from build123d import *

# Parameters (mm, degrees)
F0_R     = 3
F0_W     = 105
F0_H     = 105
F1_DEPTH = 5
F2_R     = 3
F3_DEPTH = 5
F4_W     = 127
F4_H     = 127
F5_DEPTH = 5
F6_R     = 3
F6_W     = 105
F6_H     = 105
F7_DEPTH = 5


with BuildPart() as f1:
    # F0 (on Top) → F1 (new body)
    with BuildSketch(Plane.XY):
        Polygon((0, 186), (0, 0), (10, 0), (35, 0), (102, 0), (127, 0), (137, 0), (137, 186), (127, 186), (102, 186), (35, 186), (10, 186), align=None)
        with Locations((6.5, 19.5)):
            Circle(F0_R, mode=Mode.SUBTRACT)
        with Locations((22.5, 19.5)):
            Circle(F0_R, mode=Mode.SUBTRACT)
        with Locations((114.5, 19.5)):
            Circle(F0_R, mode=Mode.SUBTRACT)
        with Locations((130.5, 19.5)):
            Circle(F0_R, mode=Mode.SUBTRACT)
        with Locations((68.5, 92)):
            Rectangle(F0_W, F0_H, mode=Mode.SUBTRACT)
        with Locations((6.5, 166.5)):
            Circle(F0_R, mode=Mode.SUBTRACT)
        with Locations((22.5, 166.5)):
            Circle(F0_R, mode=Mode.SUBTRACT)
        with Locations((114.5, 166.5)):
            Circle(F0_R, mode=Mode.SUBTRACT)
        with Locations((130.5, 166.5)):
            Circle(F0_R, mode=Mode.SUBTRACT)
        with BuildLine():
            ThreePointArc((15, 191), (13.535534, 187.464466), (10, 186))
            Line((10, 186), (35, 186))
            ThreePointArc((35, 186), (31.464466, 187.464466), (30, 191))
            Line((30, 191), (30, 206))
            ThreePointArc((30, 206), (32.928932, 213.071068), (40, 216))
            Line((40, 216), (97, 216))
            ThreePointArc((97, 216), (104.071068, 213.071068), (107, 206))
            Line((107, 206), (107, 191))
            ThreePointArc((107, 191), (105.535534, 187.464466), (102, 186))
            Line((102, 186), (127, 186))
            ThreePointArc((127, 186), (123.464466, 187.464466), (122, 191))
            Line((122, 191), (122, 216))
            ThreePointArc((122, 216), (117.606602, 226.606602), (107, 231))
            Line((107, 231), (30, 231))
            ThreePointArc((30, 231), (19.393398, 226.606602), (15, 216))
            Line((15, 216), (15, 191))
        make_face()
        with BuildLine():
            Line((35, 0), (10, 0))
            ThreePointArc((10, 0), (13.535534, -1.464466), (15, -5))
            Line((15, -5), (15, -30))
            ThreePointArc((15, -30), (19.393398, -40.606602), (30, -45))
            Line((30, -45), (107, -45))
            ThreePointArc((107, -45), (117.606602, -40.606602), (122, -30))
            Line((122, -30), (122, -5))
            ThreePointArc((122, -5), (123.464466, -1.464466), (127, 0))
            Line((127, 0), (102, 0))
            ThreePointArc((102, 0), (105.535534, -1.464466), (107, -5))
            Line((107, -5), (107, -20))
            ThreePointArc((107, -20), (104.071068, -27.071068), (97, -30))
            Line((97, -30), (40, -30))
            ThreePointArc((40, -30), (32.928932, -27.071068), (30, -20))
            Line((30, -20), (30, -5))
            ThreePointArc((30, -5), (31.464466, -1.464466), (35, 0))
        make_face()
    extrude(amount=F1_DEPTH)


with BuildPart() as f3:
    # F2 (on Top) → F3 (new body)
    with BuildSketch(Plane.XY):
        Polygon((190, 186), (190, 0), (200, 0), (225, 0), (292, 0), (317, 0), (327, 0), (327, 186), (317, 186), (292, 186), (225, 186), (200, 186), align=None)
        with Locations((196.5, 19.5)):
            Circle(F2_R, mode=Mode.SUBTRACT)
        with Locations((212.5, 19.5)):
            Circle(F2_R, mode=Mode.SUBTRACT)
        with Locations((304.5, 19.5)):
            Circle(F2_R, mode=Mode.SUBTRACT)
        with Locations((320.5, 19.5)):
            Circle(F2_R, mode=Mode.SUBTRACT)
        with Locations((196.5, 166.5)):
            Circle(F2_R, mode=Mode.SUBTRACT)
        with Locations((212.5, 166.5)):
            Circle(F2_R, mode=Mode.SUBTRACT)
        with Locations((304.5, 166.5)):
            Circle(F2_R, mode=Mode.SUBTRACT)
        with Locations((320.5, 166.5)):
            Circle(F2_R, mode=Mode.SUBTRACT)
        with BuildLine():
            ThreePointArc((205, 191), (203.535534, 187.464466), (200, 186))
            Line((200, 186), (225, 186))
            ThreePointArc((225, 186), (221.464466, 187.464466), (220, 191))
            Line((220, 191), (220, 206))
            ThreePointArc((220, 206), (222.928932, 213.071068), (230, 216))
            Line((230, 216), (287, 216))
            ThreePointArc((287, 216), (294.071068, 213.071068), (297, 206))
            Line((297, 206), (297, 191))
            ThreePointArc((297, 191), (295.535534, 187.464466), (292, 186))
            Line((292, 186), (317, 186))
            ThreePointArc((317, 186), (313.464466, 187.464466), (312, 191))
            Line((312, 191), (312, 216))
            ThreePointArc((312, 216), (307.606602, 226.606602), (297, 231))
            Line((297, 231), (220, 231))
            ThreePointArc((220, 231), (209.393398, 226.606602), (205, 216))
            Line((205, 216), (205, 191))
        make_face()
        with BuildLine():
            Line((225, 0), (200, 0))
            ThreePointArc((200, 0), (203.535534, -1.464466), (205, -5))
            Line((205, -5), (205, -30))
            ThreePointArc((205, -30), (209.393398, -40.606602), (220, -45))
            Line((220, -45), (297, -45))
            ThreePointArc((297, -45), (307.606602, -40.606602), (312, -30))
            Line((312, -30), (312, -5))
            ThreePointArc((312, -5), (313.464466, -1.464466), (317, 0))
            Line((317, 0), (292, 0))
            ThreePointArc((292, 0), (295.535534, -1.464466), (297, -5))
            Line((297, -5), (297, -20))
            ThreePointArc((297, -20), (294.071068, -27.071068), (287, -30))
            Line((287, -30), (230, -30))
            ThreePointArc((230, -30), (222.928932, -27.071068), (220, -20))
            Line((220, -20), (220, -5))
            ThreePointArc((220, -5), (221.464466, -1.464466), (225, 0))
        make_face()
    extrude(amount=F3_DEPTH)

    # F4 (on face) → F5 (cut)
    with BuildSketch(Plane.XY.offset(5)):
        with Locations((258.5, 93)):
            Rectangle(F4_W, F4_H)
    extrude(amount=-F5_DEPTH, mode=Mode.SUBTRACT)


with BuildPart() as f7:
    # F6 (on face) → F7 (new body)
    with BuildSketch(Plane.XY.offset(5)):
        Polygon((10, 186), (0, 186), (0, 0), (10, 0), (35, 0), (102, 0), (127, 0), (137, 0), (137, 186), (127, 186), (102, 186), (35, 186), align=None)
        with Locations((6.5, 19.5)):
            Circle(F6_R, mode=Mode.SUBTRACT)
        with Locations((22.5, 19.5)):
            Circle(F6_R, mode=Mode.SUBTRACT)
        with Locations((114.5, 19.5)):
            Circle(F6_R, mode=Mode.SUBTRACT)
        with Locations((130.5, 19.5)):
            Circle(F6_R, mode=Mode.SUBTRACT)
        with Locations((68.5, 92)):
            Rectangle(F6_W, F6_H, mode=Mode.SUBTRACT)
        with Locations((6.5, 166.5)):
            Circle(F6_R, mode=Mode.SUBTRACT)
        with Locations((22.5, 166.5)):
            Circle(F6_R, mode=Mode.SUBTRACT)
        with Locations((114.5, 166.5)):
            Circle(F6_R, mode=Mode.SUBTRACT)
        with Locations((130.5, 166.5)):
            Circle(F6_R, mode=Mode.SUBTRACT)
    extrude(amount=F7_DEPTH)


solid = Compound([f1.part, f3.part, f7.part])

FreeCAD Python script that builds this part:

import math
import FreeCAD as App
import Part
import Sketcher

V = App.Vector
Q = App.Units.Quantity


def add_polygon(sketch, points):
    """Adds a closed chain of lines whose ends are joined by coincident constraints."""
    first, n = sketch.GeometryCount, len(points)
    for a, b in zip(points, points[1:] + points[:1]):
        sketch.addGeometry(Part.LineSegment(App.Vector(*a, 0), App.Vector(*b, 0)), False)
    for i in range(n):
        sketch.addConstraint(Sketcher.Constraint("Coincident", first + i, 2, first + (i + 1) % n, 1))

doc = App.newDocument("Part")
params = doc.addObject("Spreadsheet::Sheet", "Params")
for row, (alias, value) in enumerate([
    ("sketch1_diameter", "6 mm"),
    ("sketch1_radius", "5 mm"),
    ("sketch1_radius2", "14.999999 mm"),
    ("sketch1_radius3", "9.999999 mm"),
    ("sketch1_width", "10 mm"),
    ("pad1_length", "5 mm"),
    ("sketch2_diameter", "6 mm"),
    ("sketch2_radius", "5 mm"),
    ("sketch2_radius2", "14.999999 mm"),
    ("sketch2_radius3", "9.999999 mm"),
    ("sketch2_width", "10 mm"),
    ("pad2_length", "5 mm"),
    ("sketch3_width", "127 mm"),
    ("pocket1_length", "5 mm"),
    ("sketch4_diameter", "6 mm"),
    ("sketch4_width", "137 mm"),
    ("sketch4_width2", "105 mm"),
    ("sketch4_height", "186 mm"),
    ("pad3_length", "5 mm"),
], start=1):
    params.set(f"A{row}", alias)
    params.set(f"B{row}", "=" + value)
    params.setAlias(f"B{row}", alias)

body = doc.addObject("PartDesign::Body", "Body")

sketch1 = doc.addObject("Sketcher::SketchObject", "Sketch")
body.addObject(sketch1)
sketch1.AttachmentSupport = (doc.XY_Plane, [""])
sketch1.MapMode = "FlatFace"
sketch1.addGeometry(Part.LineSegment(V(0, 186, 0), V(0, 0, 0)), False)
sketch1.addGeometry(Part.LineSegment(V(0, 0, 0), V(10, 0, 0)), False)
sketch1.addGeometry(Part.ArcOfCircle(Part.Circle(V(10, -5, 0), V(0, 0, 1), 5), math.radians(0), math.radians(90)), False)
sketch1.addGeometry(Part.LineSegment(V(15, -5, 0), V(15, -30, 0)), False)
sketch1.addGeometry(Part.ArcOfCircle(Part.Circle(V(30, -30, 0), V(0, 0, 1), 15), math.radians(180), math.radians(270)), False)
sketch1.addGeometry(Part.LineSegment(V(30, -45, 0), V(107, -45, 0)), False)
sketch1.addGeometry(Part.ArcOfCircle(Part.Circle(V(107, -30, 0), V(0, 0, 1), 15), math.radians(-90), math.radians(0)), False)
sketch1.addGeometry(Part.LineSegment(V(122, -30, 0), V(122, -5, 0)), False)
sketch1.addGeometry(Part.ArcOfCircle(Part.Circle(V(127, -5, 0), V(0, 0, 1), 5), math.radians(90), math.radians(180)), False)
sketch1.addGeometry(Part.LineSegment(V(127, 0, 0), V(137, 0, 0)), False)
sketch1.addGeometry(Part.LineSegment(V(137, 0, 0), V(137, 186, 0)), False)
sketch1.addGeometry(Part.LineSegment(V(137, 186, 0), V(127, 186, 0)), False)
sketch1.addGeometry(Part.ArcOfCircle(Part.Circle(V(127, 191, 0), V(0, 0, 1), 5), math.radians(180), math.radians(270)), False)
sketch1.addGeometry(Part.LineSegment(V(122, 191, 0), V(122, 216, 0)), False)
sketch1.addGeometry(Part.ArcOfCircle(Part.Circle(V(107, 216, 0), V(0, 0, 1), 15), math.radians(0), math.radians(90)), False)
sketch1.addGeometry(Part.LineSegment(V(107, 231, 0), V(30, 231, 0)), False)
sketch1.addGeometry(Part.ArcOfCircle(Part.Circle(V(30, 216, 0), V(0, 0, 1), 15), math.radians(90), math.radians(180)), False)
sketch1.addGeometry(Part.LineSegment(V(15, 216, 0), V(15, 191, 0)), False)
sketch1.addGeometry(Part.ArcOfCircle(Part.Circle(V(10, 191, 0), V(0, 0, 1), 5), math.radians(-90), math.radians(0)), False)
sketch1.addGeometry(Part.LineSegment(V(10, 186, 0), V(0, 186, 0)), False)
sketch1.addGeometry(Part.LineSegment(V(35, 0, 0), V(102, 0, 0)), False)
sketch1.addGeometry(Part.ArcOfCircle(Part.Circle(V(102, -5, 0), V(0, 0, 1), 5), math.radians(0), math.radians(90)), False)
sketch1.addGeometry(Part.LineSegment(V(107, -5, 0), V(107, -20, 0)), False)
sketch1.addGeometry(Part.ArcOfCircle(Part.Circle(V(97, -20, 0), V(0, 0, 1), 10), math.radians(-90), math.radians(0)), False)
sketch1.addGeometry(Part.LineSegment(V(97, -30, 0), V(40, -30, 0)), False)
sketch1.addGeometry(Part.ArcOfCircle(Part.Circle(V(40, -20, 0), V(0, 0, 1), 10), math.radians(180), math.radians(270)), False)
sketch1.addGeometry(Part.LineSegment(V(30, -20, 0), V(30, -5, 0)), False)
sketch1.addGeometry(Part.ArcOfCircle(Part.Circle(V(35, -5, 0), V(0, 0, 1), 5), math.radians(90), math.radians(180)), False)
sketch1.addGeometry(Part.LineSegment(V(102, 186, 0), V(35, 186, 0)), False)
sketch1.addGeometry(Part.ArcOfCircle(Part.Circle(V(35, 191, 0), V(0, 0, 1), 5), math.radians(180), math.radians(270)), False)
sketch1.addGeometry(Part.LineSegment(V(30, 191, 0), V(30, 206, 0)), False)
sketch1.addGeometry(Part.ArcOfCircle(Part.Circle(V(40, 206, 0), V(0, 0, 1), 10), math.radians(90), math.radians(180)), False)
sketch1.addGeometry(Part.LineSegment(V(40, 216, 0), V(97, 216, 0)), False)
sketch1.addGeometry(Part.ArcOfCircle(Part.Circle(V(97, 206, 0), V(0, 0, 1), 10), math.radians(0), math.radians(90)), False)
sketch1.addGeometry(Part.LineSegment(V(107, 206, 0), V(107, 191, 0)), False)
sketch1.addGeometry(Part.ArcOfCircle(Part.Circle(V(102, 191, 0), V(0, 0, 1), 5), math.radians(-90), math.radians(0)), False)
sketch1.addGeometry(Part.Circle(V(6.5, 19.5, 0), V(0, 0, 1), 3), False)
sketch1.addGeometry(Part.Circle(V(22.5, 19.5, 0), V(0, 0, 1), 3), False)
sketch1.addGeometry(Part.Circle(V(114.5, 19.5, 0), V(0, 0, 1), 3), False)
sketch1.addGeometry(Part.Circle(V(130.5, 19.5, 0), V(0, 0, 1), 3), False)
add_polygon(sketch1, [(121, 39.5), (16, 39.5), (16, 144.5), (121, 144.5)])
sketch1.addGeometry(Part.Circle(V(6.5, 166.5, 0), V(0, 0, 1), 3), False)
sketch1.addGeometry(Part.Circle(V(22.5, 166.5, 0), V(0, 0, 1), 3), False)
sketch1.addGeometry(Part.Circle(V(114.5, 166.5, 0), V(0, 0, 1), 3), False)
sketch1.addGeometry(Part.Circle(V(130.5, 166.5, 0), V(0, 0, 1), 3), False)
sketch1.addConstraint([
    Sketcher.Constraint("Coincident", 0, 2, 1, 1),
    Sketcher.Constraint("Tangent", 1, 2, 2, 2),
    Sketcher.Constraint("Tangent", 2, 1, 3, 1),
    Sketcher.Constraint("Tangent", 3, 2, 4, 1),
    Sketcher.Constraint("Tangent", 4, 2, 5, 1),
    Sketcher.Constraint("Tangent", 5, 2, 6, 1),
    Sketcher.Constraint("Tangent", 6, 2, 7, 1),
    Sketcher.Constraint("Tangent", 7, 2, 8, 2),
    Sketcher.Constraint("Tangent", 8, 1, 9, 1),
    Sketcher.Constraint("Coincident", 9, 2, 10, 1),
    Sketcher.Constraint("Coincident", 10, 2, 11, 1),
    Sketcher.Constraint("Tangent", 11, 2, 12, 2),
    Sketcher.Constraint("Tangent", 12, 1, 13, 1),
    Sketcher.Constraint("Tangent", 13, 2, 14, 1),
    Sketcher.Constraint("Tangent", 14, 2, 15, 1),
    Sketcher.Constraint("Tangent", 15, 2, 16, 1),
    Sketcher.Constraint("Tangent", 16, 2, 17, 1),
    Sketcher.Constraint("Tangent", 17, 2, 18, 2),
    Sketcher.Constraint("Tangent", 18, 1, 19, 1),
    Sketcher.Constraint("Coincident", 19, 2, 0, 1),
    Sketcher.Constraint("Tangent", 20, 2, 21, 2),
    Sketcher.Constraint("Tangent", 21, 1, 22, 1),
    Sketcher.Constraint("Tangent", 22, 2, 23, 2),
    Sketcher.Constraint("Tangent", 23, 1, 24, 1),
    Sketcher.Constraint("Tangent", 24, 2, 25, 2),
    Sketcher.Constraint("Tangent", 25, 1, 26, 1),
    Sketcher.Constraint("Tangent", 26, 2, 27, 2),
    Sketcher.Constraint("Tangent", 27, 1, 20, 1),
    Sketcher.Constraint("Tangent", 28, 2, 29, 2),
    Sketcher.Constraint("Tangent", 29, 1, 30, 1),
    Sketcher.Constraint("Tangent", 30, 2, 31, 2),
    Sketcher.Constraint("Tangent", 31, 1, 32, 1),
    Sketcher.Constraint("Tangent", 32, 2, 33, 2),
    Sketcher.Constraint("Tangent", 33, 1, 34, 1),
    Sketcher.Constraint("Tangent", 34, 2, 35, 2),
    Sketcher.Constraint("Tangent", 35, 1, 28, 1),
    Sketcher.Constraint("Vertical", 0),
    Sketcher.Constraint("Horizontal", 1),
    Sketcher.Constraint("Vertical", 3),
    Sketcher.Constraint("Horizontal", 5),
    Sketcher.Constraint("Vertical", 7),
    Sketcher.Constraint("Horizontal", 9),
    Sketcher.Constraint("Vertical", 10),
    Sketcher.Constraint("Horizontal", 11),
    Sketcher.Constraint("Vertical", 13),
    Sketcher.Constraint("Horizontal", 15),
    Sketcher.Constraint("Vertical", 17),
    Sketcher.Constraint("Horizontal", 19),
    Sketcher.Constraint("Horizontal", 20),
    Sketcher.Constraint("Vertical", 22),
    Sketcher.Constraint("Horizontal", 24),
    Sketcher.Constraint("Vertical", 26),
    Sketcher.Constraint("Horizontal", 28),
    Sketcher.Constraint("Vertical", 30),
    Sketcher.Constraint("Horizontal", 32),
    Sketcher.Constraint("Vertical", 34),
    Sketcher.Constraint("Horizontal", 40),
    Sketcher.Constraint("Vertical", 41),
    Sketcher.Constraint("Horizontal", 42),
    Sketcher.Constraint("Vertical", 43),
    Sketcher.Constraint("Coincident", 0, 2, -1, 1),
    Sketcher.Constraint("Equal", 4, 6),
    Sketcher.Constraint("Equal", 2, 8),
    Sketcher.Constraint("Equal", 8, 12),
    Sketcher.Constraint("Equal", 6, 14),
    Sketcher.Constraint("Equal", 14, 16),
    Sketcher.Constraint("Equal", 12, 18),
    Sketcher.Constraint("Equal", 18, 21),
    Sketcher.Constraint("Equal", 23, 25),
    Sketcher.Constraint("Equal", 21, 27),
    Sketcher.Constraint("Equal", 27, 29),
    Sketcher.Constraint("Equal", 25, 31),
    Sketcher.Constraint("Equal", 31, 33),
    Sketcher.Constraint("Equal", 29, 35),
    Sketcher.Constraint("Equal", 36, 37),
    Sketcher.Constraint("Equal", 37, 38),
    Sketcher.Constraint("Equal", 38, 39),
    Sketcher.Constraint("Equal", 39, 44),
    Sketcher.Constraint("Equal", 44, 45),
    Sketcher.Constraint("Equal", 45, 46),
    Sketcher.Constraint("Equal", 46, 47),
    Sketcher.Constraint("PointOnObject", 8, 1, -1),
    Sketcher.Constraint("PointOnObject", 20, 2, -1),
    Sketcher.Constraint("Horizontal", 12, 3, 18, 3),
    Sketcher.Constraint("Horizontal", 18, 3, 29, 3),
    Sketcher.Constraint("Horizontal", 36, 3, 37, 3),
    Sketcher.Constraint("Horizontal", 37, 3, 38, 3),
    Sketcher.Constraint("Horizontal", 38, 3, 39, 3),
    Sketcher.Constraint("Horizontal", 44, 3, 45, 3),
    Sketcher.Constraint("Horizontal", 45, 3, 46, 3),
    Sketcher.Constraint("Horizontal", 46, 3, 47, 3),
    Sketcher.Constraint("Horizontal", 6, 2, 23, 1),
    Sketcher.Constraint("Horizontal", 16, 2, 31, 1),
    Sketcher.Constraint("Vertical", 8, 3, 12, 3),
    Sketcher.Constraint("Vertical", 4, 3, 16, 3),
    Sketcher.Constraint("Vertical", 27, 3, 29, 3),
    Sketcher.Constraint("Vertical", 23, 3, 33, 3),
    Sketcher.Constraint("Vertical", 36, 3, 44, 3),
    Sketcher.Constraint("Vertical", 37, 3, 45, 3),
    Sketcher.Constraint("Vertical", 38, 3, 46, 3),
    Sketcher.Constraint("Vertical", 39, 3, 47, 3),
    Sketcher.Constraint("Vertical", 14, 2, 21, 1),
    Sketcher.Constraint("Vertical", 15, 2, 25, 1),
    Sketcher.Constraint("Equal", 1, 9),
    Sketcher.Constraint("Equal", 7, 13),
    Sketcher.Constraint("Equal", 42, 41),
    Sketcher.Constraint("Diameter", 36, Q("6 mm")),
    Sketcher.Constraint("Radius", 2, Q("5 mm")),
    Sketcher.Constraint("Radius", 4, Q("14.999999 mm")),
    Sketcher.Constraint("Radius", 23, Q("9.999999 mm")),
    Sketcher.Constraint("DistanceX", 1, 1, 1, 2, Q("10 mm")),
    Sketcher.Constraint("DistanceX", 5, 1, 5, 2, Q("77 mm")),
    Sketcher.Constraint("DistanceX", 40, 2, 40, 1, Q("105 mm")),
    Sketcher.Constraint("DistanceY", 0, 2, 0, 1, Q("186 mm")),
    Sketcher.Constraint("DistanceY", 3, 2, 3, 1, Q("25 mm")),
    Sketcher.Constraint("DistanceX", -1, 1, 40, 2, Q("16 mm")),
    Sketcher.Constraint("DistanceX", -1, 1, 36, 3, Q("6.5 mm")),
    Sketcher.Constraint("DistanceY", -1, 1, 36, 3, Q("19.5 mm")),
    Sketcher.Constraint("DistanceX", -1, 1, 37, 3, Q("22.5 mm")),
    Sketcher.Constraint("DistanceX", -1, 1, 38, 3, Q("114.5 mm")),
    Sketcher.Constraint("DistanceX", -1, 1, 39, 3, Q("130.5 mm")),
    Sketcher.Constraint("DistanceY", -1, 1, 44, 3, Q("166.5 mm")),
    Sketcher.Constraint("DistanceY", -1, 1, 40, 2, Q("39.5 mm")),
])
sketch1.setExpression("Constraints[110]", "Params.sketch1_diameter")
sketch1.setExpression("Constraints[111]", "Params.sketch1_radius")
sketch1.setExpression("Constraints[112]", "Params.sketch1_radius2")
sketch1.setExpression("Constraints[113]", "Params.sketch1_radius3")
sketch1.setExpression("Constraints[114]", "Params.sketch1_width")
pad1 = doc.addObject("PartDesign::Pad", "Pad")
body.addObject(pad1)
pad1.Profile = sketch1
pad1.setExpression("Length", "Params.pad1_length")
body2 = doc.addObject("PartDesign::Body", "Body001")

sketch2 = doc.addObject("Sketcher::SketchObject", "Sketch001")
body2.addObject(sketch2)
sketch2.AttachmentSupport = (doc.getObject("XY_Plane001"), [""])
sketch2.MapMode = "FlatFace"
sketch2.addGeometry([
    Part.LineSegment(V(190, 186, 0), V(190, 0, 0)),
    Part.LineSegment(V(190, 0, 0), V(200, 0, 0)),
    Part.ArcOfCircle(Part.Circle(V(200, -5, 0), V(0, 0, 1), 5), math.radians(0), math.radians(90)),
    Part.LineSegment(V(205, -5, 0), V(205, -30, 0)),
    Part.ArcOfCircle(Part.Circle(V(220, -30, 0), V(0, 0, 1), 15), math.radians(180), math.radians(270)),
    Part.LineSegment(V(220, -45, 0), V(297, -45, 0)),
    Part.ArcOfCircle(Part.Circle(V(297, -30, 0), V(0, 0, 1), 15), math.radians(-90), math.radians(0)),
    Part.LineSegment(V(312, -30, 0), V(312, -5, 0)),
    Part.ArcOfCircle(Part.Circle(V(317, -5, 0), V(0, 0, 1), 5), math.radians(90), math.radians(180)),
    Part.LineSegment(V(317, 0, 0), V(327, 0, 0)),
    Part.LineSegment(V(327, 0, 0), V(327, 186, 0)),
    Part.LineSegment(V(327, 186, 0), V(317, 186, 0)),
    Part.ArcOfCircle(Part.Circle(V(317, 191, 0), V(0, 0, 1), 5), math.radians(180), math.radians(270)),
    Part.LineSegment(V(312, 191, 0), V(312, 216, 0)),
    Part.ArcOfCircle(Part.Circle(V(297, 216, 0), V(0, 0, 1), 15), math.radians(0), math.radians(90)),
    Part.LineSegment(V(297, 231, 0), V(220, 231, 0)),
    Part.ArcOfCircle(Part.Circle(V(220, 216, 0), V(0, 0, 1), 15), math.radians(90), math.radians(180)),
    Part.LineSegment(V(205, 216, 0), V(205, 191, 0)),
    Part.ArcOfCircle(Part.Circle(V(200, 191, 0), V(0, 0, 1), 5), math.radians(-90), math.radians(0)),
    Part.LineSegment(V(200, 186, 0), V(190, 186, 0)),
    Part.LineSegment(V(225, 0, 0), V(292, 0, 0)),
    Part.ArcOfCircle(Part.Circle(V(292, -5, 0), V(0, 0, 1), 5), math.radians(0), math.radians(90)),
    Part.LineSegment(V(297, -5, 0), V(297, -20, 0)),
    Part.ArcOfCircle(Part.Circle(V(287, -20, 0), V(0, 0, 1), 10), math.radians(-90), math.radians(0)),
    Part.LineSegment(V(287, -30, 0), V(230, -30, 0)),
    Part.ArcOfCircle(Part.Circle(V(230, -20, 0), V(0, 0, 1), 10), math.radians(180), math.radians(270)),
    Part.LineSegment(V(220, -20, 0), V(220, -5, 0)),
    Part.ArcOfCircle(Part.Circle(V(225, -5, 0), V(0, 0, 1), 5), math.radians(90), math.radians(180)),
    Part.LineSegment(V(292, 186, 0), V(225, 186, 0)),
    Part.ArcOfCircle(Part.Circle(V(225, 191, 0), V(0, 0, 1), 5), math.radians(180), math.radians(270)),
    Part.LineSegment(V(220, 191, 0), V(220, 206, 0)),
    Part.ArcOfCircle(Part.Circle(V(230, 206, 0), V(0, 0, 1), 10), math.radians(90), math.radians(180)),
    Part.LineSegment(V(230, 216, 0), V(287, 216, 0)),
    Part.ArcOfCircle(Part.Circle(V(287, 206, 0), V(0, 0, 1), 10), math.radians(0), math.radians(90)),
    Part.LineSegment(V(297, 206, 0), V(297, 191, 0)),
    Part.ArcOfCircle(Part.Circle(V(292, 191, 0), V(0, 0, 1), 5), math.radians(-90), math.radians(0)),
    Part.Circle(V(196.5, 19.5, 0), V(0, 0, 1), 3),
    Part.Circle(V(212.5, 19.5, 0), V(0, 0, 1), 3),
    Part.Circle(V(304.5, 19.5, 0), V(0, 0, 1), 3),
    Part.Circle(V(320.5, 19.5, 0), V(0, 0, 1), 3),
    Part.Circle(V(196.5, 166.5, 0), V(0, 0, 1), 3),
    Part.Circle(V(212.5, 166.5, 0), V(0, 0, 1), 3),
    Part.Circle(V(304.5, 166.5, 0), V(0, 0, 1), 3),
    Part.Circle(V(320.5, 166.5, 0), V(0, 0, 1), 3),
], False)
sketch2.addConstraint([
    Sketcher.Constraint("Coincident", 0, 2, 1, 1),
    Sketcher.Constraint("Tangent", 1, 2, 2, 2),
    Sketcher.Constraint("Tangent", 2, 1, 3, 1),
    Sketcher.Constraint("Tangent", 3, 2, 4, 1),
    Sketcher.Constraint("Tangent", 4, 2, 5, 1),
    Sketcher.Constraint("Tangent", 5, 2, 6, 1),
    Sketcher.Constraint("Tangent", 6, 2, 7, 1),
    Sketcher.Constraint("Tangent", 7, 2, 8, 2),
    Sketcher.Constraint("Tangent", 8, 1, 9, 1),
    Sketcher.Constraint("Coincident", 9, 2, 10, 1),
    Sketcher.Constraint("Coincident", 10, 2, 11, 1),
    Sketcher.Constraint("Tangent", 11, 2, 12, 2),
    Sketcher.Constraint("Tangent", 12, 1, 13, 1),
    Sketcher.Constraint("Tangent", 13, 2, 14, 1),
    Sketcher.Constraint("Tangent", 14, 2, 15, 1),
    Sketcher.Constraint("Tangent", 15, 2, 16, 1),
    Sketcher.Constraint("Tangent", 16, 2, 17, 1),
    Sketcher.Constraint("Tangent", 17, 2, 18, 2),
    Sketcher.Constraint("Tangent", 18, 1, 19, 1),
    Sketcher.Constraint("Coincident", 19, 2, 0, 1),
    Sketcher.Constraint("Tangent", 20, 2, 21, 2),
    Sketcher.Constraint("Tangent", 21, 1, 22, 1),
    Sketcher.Constraint("Tangent", 22, 2, 23, 2),
    Sketcher.Constraint("Tangent", 23, 1, 24, 1),
    Sketcher.Constraint("Tangent", 24, 2, 25, 2),
    Sketcher.Constraint("Tangent", 25, 1, 26, 1),
    Sketcher.Constraint("Tangent", 26, 2, 27, 2),
    Sketcher.Constraint("Tangent", 27, 1, 20, 1),
    Sketcher.Constraint("Tangent", 28, 2, 29, 2),
    Sketcher.Constraint("Tangent", 29, 1, 30, 1),
    Sketcher.Constraint("Tangent", 30, 2, 31, 2),
    Sketcher.Constraint("Tangent", 31, 1, 32, 1),
    Sketcher.Constraint("Tangent", 32, 2, 33, 2),
    Sketcher.Constraint("Tangent", 33, 1, 34, 1),
    Sketcher.Constraint("Tangent", 34, 2, 35, 2),
    Sketcher.Constraint("Tangent", 35, 1, 28, 1),
    Sketcher.Constraint("Vertical", 0),
    Sketcher.Constraint("Horizontal", 1),
    Sketcher.Constraint("Vertical", 3),
    Sketcher.Constraint("Horizontal", 5),
    Sketcher.Constraint("Vertical", 7),
    Sketcher.Constraint("Horizontal", 9),
    Sketcher.Constraint("Vertical", 10),
    Sketcher.Constraint("Horizontal", 11),
    Sketcher.Constraint("Vertical", 13),
    Sketcher.Constraint("Horizontal", 15),
    Sketcher.Constraint("Vertical", 17),
    Sketcher.Constraint("Horizontal", 19),
    Sketcher.Constraint("Horizontal", 20),
    Sketcher.Constraint("Vertical", 22),
    Sketcher.Constraint("Horizontal", 24),
    Sketcher.Constraint("Vertical", 26),
    Sketcher.Constraint("Horizontal", 28),
    Sketcher.Constraint("Vertical", 30),
    Sketcher.Constraint("Horizontal", 32),
    Sketcher.Constraint("Vertical", 34),
    Sketcher.Constraint("Equal", 4, 6),
    Sketcher.Constraint("Equal", 2, 8),
    Sketcher.Constraint("Equal", 8, 12),
    Sketcher.Constraint("Equal", 6, 14),
    Sketcher.Constraint("Equal", 14, 16),
    Sketcher.Constraint("Equal", 12, 18),
    Sketcher.Constraint("Equal", 18, 21),
    Sketcher.Constraint("Equal", 23, 25),
    Sketcher.Constraint("Equal", 21, 27),
    Sketcher.Constraint("Equal", 27, 29),
    Sketcher.Constraint("Equal", 25, 31),
    Sketcher.Constraint("Equal", 31, 33),
    Sketcher.Constraint("Equal", 29, 35),
    Sketcher.Constraint("Equal", 36, 37),
    Sketcher.Constraint("Equal", 37, 38),
    Sketcher.Constraint("Equal", 38, 39),
    Sketcher.Constraint("Equal", 39, 40),
    Sketcher.Constraint("Equal", 40, 41),
    Sketcher.Constraint("Equal", 41, 42),
    Sketcher.Constraint("Equal", 42, 43),
    Sketcher.Constraint("PointOnObject", 0, 2, -1),
    Sketcher.Constraint("PointOnObject", 8, 1, -1),
    Sketcher.Constraint("PointOnObject", 20, 2, -1),
    Sketcher.Constraint("Horizontal", 12, 3, 18, 3),
    Sketcher.Constraint("Horizontal", 18, 3, 29, 3),
    Sketcher.Constraint("Horizontal", 36, 3, 37, 3),
    Sketcher.Constraint("Horizontal", 37, 3, 38, 3),
    Sketcher.Constraint("Horizontal", 38, 3, 39, 3),
    Sketcher.Constraint("Horizontal", 40, 3, 41, 3),
    Sketcher.Constraint("Horizontal", 41, 3, 42, 3),
    Sketcher.Constraint("Horizontal", 42, 3, 43, 3),
    Sketcher.Constraint("Horizontal", 6, 2, 23, 1),
    Sketcher.Constraint("Horizontal", 16, 2, 31, 1),
    Sketcher.Constraint("Vertical", 8, 3, 12, 3),
    Sketcher.Constraint("Vertical", 4, 3, 16, 3),
    Sketcher.Constraint("Vertical", 27, 3, 29, 3),
    Sketcher.Constraint("Vertical", 23, 3, 33, 3),
    Sketcher.Constraint("Vertical", 36, 3, 40, 3),
    Sketcher.Constraint("Vertical", 37, 3, 41, 3),
    Sketcher.Constraint("Vertical", 38, 3, 42, 3),
    Sketcher.Constraint("Vertical", 39, 3, 43, 3),
    Sketcher.Constraint("Vertical", 14, 2, 21, 1),
    Sketcher.Constraint("Vertical", 15, 2, 25, 1),
    Sketcher.Constraint("Equal", 1, 9),
    Sketcher.Constraint("Equal", 7, 13),
    Sketcher.Constraint("Diameter", 36, Q("6 mm")),
    Sketcher.Constraint("Radius", 2, Q("5 mm")),
    Sketcher.Constraint("Radius", 4, Q("14.999999 mm")),
    Sketcher.Constraint("Radius", 23, Q("9.999999 mm")),
    Sketcher.Constraint("DistanceX", 1, 1, 1, 2, Q("10 mm")),
    Sketcher.Constraint("DistanceX", 5, 1, 5, 2, Q("77 mm")),
    Sketcher.Constraint("DistanceY", 0, 2, 0, 1, Q("186 mm")),
    Sketcher.Constraint("DistanceY", 3, 2, 3, 1, Q("25 mm")),
    Sketcher.Constraint("DistanceX", -1, 1, 2, 3, Q("200 mm")),
    Sketcher.Constraint("DistanceX", 36, 3, 37, 3, Q("16 mm")),
    Sketcher.Constraint("DistanceX", 38, 3, 39, 3, Q("16 mm")),
    Sketcher.Constraint("DistanceX", -1, 1, 36, 3, Q("196.5 mm")),
    Sketcher.Constraint("DistanceY", -1, 1, 36, 3, Q("19.5 mm")),
    Sketcher.Constraint("DistanceX", -1, 1, 38, 3, Q("304.5 mm")),
    Sketcher.Constraint("DistanceY", -1, 1, 40, 3, Q("166.5 mm")),
])
sketch2.setExpression("Constraints[101]", "Params.sketch2_diameter")
sketch2.setExpression("Constraints[102]", "Params.sketch2_radius")
sketch2.setExpression("Constraints[103]", "Params.sketch2_radius2")
sketch2.setExpression("Constraints[104]", "Params.sketch2_radius3")
sketch2.setExpression("Constraints[105]", "Params.sketch2_width")
pad2 = doc.addObject("PartDesign::Pad", "Pad001")
body2.addObject(pad2)
pad2.Profile = sketch2
pad2.setExpression("Length", "Params.pad2_length")

sketch3 = doc.addObject("Sketcher::SketchObject", "Sketch002")
body2.addObject(sketch3)
sketch3.AttachmentSupport = (doc.getObject("XY_Plane001"), [""])
sketch3.MapMode = "FlatFace"
sketch3.AttachmentOffset = App.Placement(V(0, 0, 5), App.Rotation())
add_polygon(sketch3, [(195, 156), (195, 30), (322, 30), (322, 156)])
sketch3.addConstraint([
    Sketcher.Constraint("Vertical", 0),
    Sketcher.Constraint("Horizontal", 1),
    Sketcher.Constraint("Vertical", 2),
    Sketcher.Constraint("Horizontal", 3),
    Sketcher.Constraint("Equal", 3, 0),
    Sketcher.Constraint("DistanceX", 1, 1, 1, 2, Q("127 mm")),
    Sketcher.Constraint("DistanceX", -1, 1, 0, 2, Q("195 mm")),
    Sketcher.Constraint("DistanceY", -1, 1, 0, 2, Q("29.5 mm")),
])
sketch3.setExpression("Constraints[9]", "Params.sketch3_width")
pocket1 = doc.addObject("PartDesign::Pocket", "Pocket")
body2.addObject(pocket1)
pocket1.Profile = sketch3
pocket1.setExpression("Length", "Params.pocket1_length")
body3 = doc.addObject("PartDesign::Body", "Body002")

sketch4 = doc.addObject("Sketcher::SketchObject", "Sketch003")
body3.addObject(sketch4)
sketch4.AttachmentSupport = (doc.getObject("XY_Plane002"), [""])
sketch4.MapMode = "FlatFace"
sketch4.AttachmentOffset = App.Placement(V(0, 0, 5), App.Rotation())
add_polygon(sketch4, [(0, 186), (0, 0), (137, 0), (137, 186)])
sketch4.addGeometry(Part.Circle(V(6.5, 19.5, 0), V(0, 0, 1), 3), False)
sketch4.addGeometry(Part.Circle(V(22.5, 19.5, 0), V(0, 0, 1), 3), False)
sketch4.addGeometry(Part.Circle(V(114.5, 19.5, 0), V(0, 0, 1), 3), False)
sketch4.addGeometry(Part.Circle(V(130.5, 19.5, 0), V(0, 0, 1), 3), False)
add_polygon(sketch4, [(121, 39.5), (16, 39.5), (16, 144.5), (121, 144.5)])
sketch4.addGeometry(Part.Circle(V(6.5, 166.5, 0), V(0, 0, 1), 3), False)
sketch4.addGeometry(Part.Circle(V(22.5, 166.5, 0), V(0, 0, 1), 3), False)
sketch4.addGeometry(Part.Circle(V(114.5, 166.5, 0), V(0, 0, 1), 3), False)
sketch4.addGeometry(Part.Circle(V(130.5, 166.5, 0), V(0, 0, 1), 3), False)
sketch4.addConstraint([
    Sketcher.Constraint("Vertical", 0),
    Sketcher.Constraint("Horizontal", 1),
    Sketcher.Constraint("Vertical", 2),
    Sketcher.Constraint("Horizontal", 3),
    Sketcher.Constraint("Horizontal", 8),
    Sketcher.Constraint("Vertical", 9),
    Sketcher.Constraint("Horizontal", 10),
    Sketcher.Constraint("Vertical", 11),
    Sketcher.Constraint("Coincident", 0, 2, -1, 1),
    Sketcher.Constraint("Equal", 4, 5),
    Sketcher.Constraint("Equal", 5, 6),
    Sketcher.Constraint("Equal", 6, 7),
    Sketcher.Constraint("Equal", 7, 12),
    Sketcher.Constraint("Equal", 12, 13),
    Sketcher.Constraint("Equal", 13, 14),
    Sketcher.Constraint("Equal", 14, 15),
    Sketcher.Constraint("Horizontal", 4, 3, 5, 3),
    Sketcher.Constraint("Horizontal", 5, 3, 6, 3),
    Sketcher.Constraint("Horizontal", 6, 3, 7, 3),
    Sketcher.Constraint("Horizontal", 12, 3, 13, 3),
    Sketcher.Constraint("Horizontal", 13, 3, 14, 3),
    Sketcher.Constraint("Horizontal", 14, 3, 15, 3),
    Sketcher.Constraint("Vertical", 4, 3, 12, 3),
    Sketcher.Constraint("Vertical", 5, 3, 13, 3),
    Sketcher.Constraint("Vertical", 6, 3, 14, 3),
    Sketcher.Constraint("Vertical", 7, 3, 15, 3),
    Sketcher.Constraint("Equal", 10, 9),
    Sketcher.Constraint("Diameter", 4, Q("6 mm")),
    Sketcher.Constraint("DistanceX", 1, 1, 1, 2, Q("137 mm")),
    Sketcher.Constraint("DistanceX", 8, 2, 8, 1, Q("105 mm")),
    Sketcher.Constraint("DistanceY", 0, 2, 0, 1, Q("186 mm")),
    Sketcher.Constraint("DistanceX", -1, 1, 8, 2, Q("16 mm")),
    Sketcher.Constraint("DistanceX", 4, 3, 5, 3, Q("16 mm")),
    Sketcher.Constraint("DistanceX", 5, 3, 6, 3, Q("92 mm")),
    Sketcher.Constraint("DistanceX", 6, 3, 7, 3, Q("16 mm")),
    Sketcher.Constraint("DistanceY", 4, 3, 12, 3, Q("147 mm")),
    Sketcher.Constraint("DistanceY", 5, 3, 8, 2, Q("20 mm")),
    Sketcher.Constraint("DistanceX", -1, 1, 4, 3, Q("6.5 mm")),
    Sketcher.Constraint("DistanceY", -1, 1, 4, 3, Q("19.5 mm")),
])
sketch4.setExpression("Constraints[35]", "Params.sketch4_diameter")
sketch4.setExpression("Constraints[36]", "Params.sketch4_width")
sketch4.setExpression("Constraints[37]", "Params.sketch4_width2")
sketch4.setExpression("Constraints[38]", "Params.sketch4_height")
pad3 = doc.addObject("PartDesign::Pad", "Pad002")
body3.addObject(pad3)
pad3.Profile = sketch4
pad3.setExpression("Length", "Params.pad3_length")

doc.recompute()
